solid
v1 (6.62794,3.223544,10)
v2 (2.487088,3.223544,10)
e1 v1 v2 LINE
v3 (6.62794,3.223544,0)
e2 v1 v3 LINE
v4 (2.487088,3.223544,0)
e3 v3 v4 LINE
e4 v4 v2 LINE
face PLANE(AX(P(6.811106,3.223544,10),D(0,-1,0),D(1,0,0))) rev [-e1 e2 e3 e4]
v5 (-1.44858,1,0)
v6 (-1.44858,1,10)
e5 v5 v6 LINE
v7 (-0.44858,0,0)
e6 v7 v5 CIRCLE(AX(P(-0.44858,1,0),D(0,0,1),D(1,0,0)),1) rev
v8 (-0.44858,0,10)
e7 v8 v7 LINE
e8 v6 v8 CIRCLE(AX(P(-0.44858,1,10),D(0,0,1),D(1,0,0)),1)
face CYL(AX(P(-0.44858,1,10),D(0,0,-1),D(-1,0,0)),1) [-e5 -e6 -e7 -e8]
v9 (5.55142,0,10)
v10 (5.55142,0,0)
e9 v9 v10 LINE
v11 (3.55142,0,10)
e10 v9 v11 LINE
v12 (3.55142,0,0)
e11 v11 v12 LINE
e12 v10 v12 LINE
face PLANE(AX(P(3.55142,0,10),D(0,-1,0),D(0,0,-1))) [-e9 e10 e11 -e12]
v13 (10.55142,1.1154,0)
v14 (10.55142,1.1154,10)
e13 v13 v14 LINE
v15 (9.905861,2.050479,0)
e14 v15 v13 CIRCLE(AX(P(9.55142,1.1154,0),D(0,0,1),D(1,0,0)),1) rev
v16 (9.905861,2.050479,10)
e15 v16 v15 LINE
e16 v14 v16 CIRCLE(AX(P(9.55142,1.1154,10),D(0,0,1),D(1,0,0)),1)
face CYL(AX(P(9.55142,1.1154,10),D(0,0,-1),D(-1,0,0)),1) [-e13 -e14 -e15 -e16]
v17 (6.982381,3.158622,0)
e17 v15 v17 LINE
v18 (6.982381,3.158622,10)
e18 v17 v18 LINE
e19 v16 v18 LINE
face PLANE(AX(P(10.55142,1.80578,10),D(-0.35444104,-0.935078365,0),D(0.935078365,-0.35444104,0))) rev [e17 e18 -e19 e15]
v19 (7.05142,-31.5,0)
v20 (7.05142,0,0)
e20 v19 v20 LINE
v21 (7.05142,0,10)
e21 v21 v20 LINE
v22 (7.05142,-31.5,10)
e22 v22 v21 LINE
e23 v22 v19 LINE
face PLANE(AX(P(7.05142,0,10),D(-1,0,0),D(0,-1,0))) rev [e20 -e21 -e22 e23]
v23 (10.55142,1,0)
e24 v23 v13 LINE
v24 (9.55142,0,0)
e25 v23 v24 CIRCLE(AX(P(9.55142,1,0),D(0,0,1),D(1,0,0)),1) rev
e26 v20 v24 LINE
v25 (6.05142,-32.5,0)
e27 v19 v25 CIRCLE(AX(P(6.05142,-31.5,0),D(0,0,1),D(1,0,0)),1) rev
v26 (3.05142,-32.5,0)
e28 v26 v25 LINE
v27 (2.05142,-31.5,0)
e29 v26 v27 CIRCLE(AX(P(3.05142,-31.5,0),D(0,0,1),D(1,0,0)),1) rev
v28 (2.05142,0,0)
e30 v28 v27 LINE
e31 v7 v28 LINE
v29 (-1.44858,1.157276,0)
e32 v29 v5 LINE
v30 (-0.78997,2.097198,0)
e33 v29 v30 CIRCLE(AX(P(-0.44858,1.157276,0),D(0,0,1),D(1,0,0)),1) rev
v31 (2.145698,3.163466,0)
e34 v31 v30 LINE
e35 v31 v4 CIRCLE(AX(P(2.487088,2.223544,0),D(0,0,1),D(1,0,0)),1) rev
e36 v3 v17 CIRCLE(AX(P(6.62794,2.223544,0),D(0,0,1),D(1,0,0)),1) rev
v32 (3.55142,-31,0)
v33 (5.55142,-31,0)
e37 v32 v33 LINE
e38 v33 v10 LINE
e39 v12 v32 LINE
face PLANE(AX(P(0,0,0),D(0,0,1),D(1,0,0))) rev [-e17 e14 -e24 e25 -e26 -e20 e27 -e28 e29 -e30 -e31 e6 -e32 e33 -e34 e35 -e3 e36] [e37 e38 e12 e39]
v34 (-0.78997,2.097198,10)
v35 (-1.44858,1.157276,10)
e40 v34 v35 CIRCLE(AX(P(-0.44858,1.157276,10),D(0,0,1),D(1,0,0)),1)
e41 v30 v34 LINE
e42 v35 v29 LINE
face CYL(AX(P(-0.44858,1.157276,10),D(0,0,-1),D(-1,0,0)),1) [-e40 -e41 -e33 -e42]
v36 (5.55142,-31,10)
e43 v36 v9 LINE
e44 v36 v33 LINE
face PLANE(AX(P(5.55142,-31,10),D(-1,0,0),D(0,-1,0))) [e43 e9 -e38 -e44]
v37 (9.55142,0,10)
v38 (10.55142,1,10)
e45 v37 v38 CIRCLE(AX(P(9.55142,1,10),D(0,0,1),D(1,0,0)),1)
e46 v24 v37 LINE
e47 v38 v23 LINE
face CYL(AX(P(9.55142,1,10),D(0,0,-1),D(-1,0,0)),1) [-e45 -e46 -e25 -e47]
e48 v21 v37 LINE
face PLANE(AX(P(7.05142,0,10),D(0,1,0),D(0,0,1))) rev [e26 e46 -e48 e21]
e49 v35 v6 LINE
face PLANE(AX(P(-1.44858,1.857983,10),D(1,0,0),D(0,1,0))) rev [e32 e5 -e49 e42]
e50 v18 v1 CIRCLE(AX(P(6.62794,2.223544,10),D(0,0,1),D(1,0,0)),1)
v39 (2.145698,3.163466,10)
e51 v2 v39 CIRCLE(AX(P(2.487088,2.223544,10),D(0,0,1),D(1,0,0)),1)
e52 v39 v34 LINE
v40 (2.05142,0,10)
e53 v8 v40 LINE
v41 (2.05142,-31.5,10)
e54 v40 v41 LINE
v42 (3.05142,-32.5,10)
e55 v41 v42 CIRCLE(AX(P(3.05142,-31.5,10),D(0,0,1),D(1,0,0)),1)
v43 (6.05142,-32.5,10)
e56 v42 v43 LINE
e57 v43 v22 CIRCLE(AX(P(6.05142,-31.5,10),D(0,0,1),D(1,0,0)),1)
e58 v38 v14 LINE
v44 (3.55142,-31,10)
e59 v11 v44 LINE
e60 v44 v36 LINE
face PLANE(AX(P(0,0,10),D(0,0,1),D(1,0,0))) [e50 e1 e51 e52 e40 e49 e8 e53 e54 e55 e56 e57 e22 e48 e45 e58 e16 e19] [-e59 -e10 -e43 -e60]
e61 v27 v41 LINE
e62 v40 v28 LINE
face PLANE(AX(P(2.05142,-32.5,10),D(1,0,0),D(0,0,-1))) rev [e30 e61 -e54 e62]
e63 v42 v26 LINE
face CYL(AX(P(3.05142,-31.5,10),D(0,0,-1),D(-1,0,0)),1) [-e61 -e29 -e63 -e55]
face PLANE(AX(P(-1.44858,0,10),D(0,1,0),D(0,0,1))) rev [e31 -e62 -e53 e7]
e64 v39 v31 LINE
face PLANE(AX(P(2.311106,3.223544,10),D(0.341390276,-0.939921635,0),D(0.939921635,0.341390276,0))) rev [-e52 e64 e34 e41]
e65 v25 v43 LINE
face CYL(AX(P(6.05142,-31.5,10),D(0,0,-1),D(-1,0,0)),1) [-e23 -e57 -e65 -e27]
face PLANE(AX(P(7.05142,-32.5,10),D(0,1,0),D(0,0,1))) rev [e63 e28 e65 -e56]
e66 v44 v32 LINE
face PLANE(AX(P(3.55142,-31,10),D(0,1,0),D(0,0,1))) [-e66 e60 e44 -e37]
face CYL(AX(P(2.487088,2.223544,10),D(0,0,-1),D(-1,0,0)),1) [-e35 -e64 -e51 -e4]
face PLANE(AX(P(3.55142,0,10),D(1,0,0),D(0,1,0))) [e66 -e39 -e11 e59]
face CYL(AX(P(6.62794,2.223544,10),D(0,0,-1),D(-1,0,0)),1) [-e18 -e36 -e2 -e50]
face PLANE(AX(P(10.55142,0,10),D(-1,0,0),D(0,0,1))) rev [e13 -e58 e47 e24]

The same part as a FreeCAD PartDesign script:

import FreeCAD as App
import Part
import Sketcher

V = App.Vector


def edges_at(feature, points):
    """Names of the edges that pass closest to the given points."""
    edges = feature.Shape.Edges
    near = lambda p: min(range(len(edges)), key=lambda i: edges[i].distToShape(Part.Vertex(*p))[0])
    return sorted({f"Edge{near(p) + 1}" for p in points})


def add_polygon(sketch, points):
    """Adds a closed chain of lines whose ends are joined by coincident constraints."""
    first, n = sketch.GeometryCount, len(points)
    for a, b in zip(points, points[1:] + points[:1]):
        sketch.addGeometry(Part.LineSegment(App.Vector(*a, 0), App.Vector(*b, 0)), False)
    for i in range(n):
        sketch.addConstraint(Sketcher.Constraint("Coincident", first + i, 2, first + (i + 1) % n, 1))

doc = App.newDocument("Part")
body = doc.addObject("PartDesign::Body", "Body")

sketch1 = body.newObject("Sketcher::SketchObject", "Sketch")
sketch1.AttachmentSupport = (doc.getObject("XY_Plane"), [""])
sketch1.MapMode = "FlatFace"
add_polygon(sketch1, [(10.6, 0), (10.6, 1.8), (6.8, 3.2), (2.3, 3.2), (-1.4, 1.9), (-1.4, 0), (2.1, 0), (2.1, -32.5), (7.1, -32.5), (7.1, 0)])
add_polygon(sketch1, [(5.6, -31), (3.6, -31), (3.6, 0), (5.6, 0)])
sketch1.addConstraint(Sketcher.Constraint("Vertical", 0))
sketch1.addConstraint(Sketcher.Constraint("Horizontal", 2))
sketch1.addConstraint(Sketcher.Constraint("Vertical", 4))
sketch1.addConstraint(Sketcher.Constraint("Horizontal", 5))
sketch1.addConstraint(Sketcher.Constraint("Vertical", 6))
sketch1.addConstraint(Sketcher.Constraint("Horizontal", 7))
sketch1.addConstraint(Sketcher.Constraint("Vertical", 8))
sketch1.addConstraint(Sketcher.Constraint("Horizontal", 9))
sketch1.addConstraint(Sketcher.Constraint("Horizontal", 10))
sketch1.addConstraint(Sketcher.Constraint("Vertical", 11))
sketch1.addConstraint(Sketcher.Constraint("Horizontal", 12))
sketch1.addConstraint(Sketcher.Constraint("Vertical", 13))
sketch1.addConstraint(Sketcher.Constraint("PointOnObject", 4, 2, -1))
sketch1.addConstraint(Sketcher.Constraint("PointOnObject", 8, 2, -1))
sketch1.addConstraint(Sketcher.Constraint("PointOnObject", 11, 2, -1))
sketch1.addConstraint(Sketcher.Constraint("Equal", 5, 9))
sketch1.addConstraint(Sketcher.Constraint("Equal", 1, 3))
sketch1.addConstraint(Sketcher.Constraint("DistanceX", 7, 1, 7, 2, 5.0))
sketch1.addConstraint(Sketcher.Constraint("DistanceX", 10, 2, 10, 1, 2.0))
sketch1.addConstraint(Sketcher.Constraint("DistanceY", 11, 1, 11, 2, 31.0))
sketch1.addConstraint(Sketcher.Constraint("Distance", 1, 4.0))
sketch1.addConstraint(Sketcher.Constraint("DistanceX", 2, 2, 2, 1, 4.5))
sketch1.addConstraint(Sketcher.Constraint("DistanceX", 5, 1, 5, 2, 3.5))
sketch1.addConstraint(Sketcher.Constraint("DistanceY", 6, 2, 6, 1, 32.5))
sketch1.addConstraint(Sketcher.Constraint("DistanceX", 4, 2, 10, 2, 5.0))
sketch1.addConstraint(Sketcher.Constraint("DistanceY", 0, 1, 0, 2, 1.80578))
sketch1.addConstraint(Sketcher.Constraint("DistanceY", 4, 2, 4, 1, 1.857983))
sketch1.addConstraint(Sketcher.Constraint("DistanceX", -1, 1, 0, 2, 10.55142))
pad1 = body.newObject("PartDesign::Pad", "Pad")
pad1.Profile = sketch1
pad1.Length = 10
doc.recompute()

fillet = body.newObject("PartDesign::Fillet", "Fillet")
fillet.Base = (pad1, edges_at(pad1, [
    (-1.449, 0, 5),
    (-1.449, 1.858, 5),
    (2.311, 3.224, 5),
    (6.811, 3.224, 5),
    (10.551, 1.806, 5),
    (10.551, 0, 5),
    (7.051, -32.5, 5),
    (2.051, -32.5, 5),
]))
fillet.Radius = 1

doc.recompute()
